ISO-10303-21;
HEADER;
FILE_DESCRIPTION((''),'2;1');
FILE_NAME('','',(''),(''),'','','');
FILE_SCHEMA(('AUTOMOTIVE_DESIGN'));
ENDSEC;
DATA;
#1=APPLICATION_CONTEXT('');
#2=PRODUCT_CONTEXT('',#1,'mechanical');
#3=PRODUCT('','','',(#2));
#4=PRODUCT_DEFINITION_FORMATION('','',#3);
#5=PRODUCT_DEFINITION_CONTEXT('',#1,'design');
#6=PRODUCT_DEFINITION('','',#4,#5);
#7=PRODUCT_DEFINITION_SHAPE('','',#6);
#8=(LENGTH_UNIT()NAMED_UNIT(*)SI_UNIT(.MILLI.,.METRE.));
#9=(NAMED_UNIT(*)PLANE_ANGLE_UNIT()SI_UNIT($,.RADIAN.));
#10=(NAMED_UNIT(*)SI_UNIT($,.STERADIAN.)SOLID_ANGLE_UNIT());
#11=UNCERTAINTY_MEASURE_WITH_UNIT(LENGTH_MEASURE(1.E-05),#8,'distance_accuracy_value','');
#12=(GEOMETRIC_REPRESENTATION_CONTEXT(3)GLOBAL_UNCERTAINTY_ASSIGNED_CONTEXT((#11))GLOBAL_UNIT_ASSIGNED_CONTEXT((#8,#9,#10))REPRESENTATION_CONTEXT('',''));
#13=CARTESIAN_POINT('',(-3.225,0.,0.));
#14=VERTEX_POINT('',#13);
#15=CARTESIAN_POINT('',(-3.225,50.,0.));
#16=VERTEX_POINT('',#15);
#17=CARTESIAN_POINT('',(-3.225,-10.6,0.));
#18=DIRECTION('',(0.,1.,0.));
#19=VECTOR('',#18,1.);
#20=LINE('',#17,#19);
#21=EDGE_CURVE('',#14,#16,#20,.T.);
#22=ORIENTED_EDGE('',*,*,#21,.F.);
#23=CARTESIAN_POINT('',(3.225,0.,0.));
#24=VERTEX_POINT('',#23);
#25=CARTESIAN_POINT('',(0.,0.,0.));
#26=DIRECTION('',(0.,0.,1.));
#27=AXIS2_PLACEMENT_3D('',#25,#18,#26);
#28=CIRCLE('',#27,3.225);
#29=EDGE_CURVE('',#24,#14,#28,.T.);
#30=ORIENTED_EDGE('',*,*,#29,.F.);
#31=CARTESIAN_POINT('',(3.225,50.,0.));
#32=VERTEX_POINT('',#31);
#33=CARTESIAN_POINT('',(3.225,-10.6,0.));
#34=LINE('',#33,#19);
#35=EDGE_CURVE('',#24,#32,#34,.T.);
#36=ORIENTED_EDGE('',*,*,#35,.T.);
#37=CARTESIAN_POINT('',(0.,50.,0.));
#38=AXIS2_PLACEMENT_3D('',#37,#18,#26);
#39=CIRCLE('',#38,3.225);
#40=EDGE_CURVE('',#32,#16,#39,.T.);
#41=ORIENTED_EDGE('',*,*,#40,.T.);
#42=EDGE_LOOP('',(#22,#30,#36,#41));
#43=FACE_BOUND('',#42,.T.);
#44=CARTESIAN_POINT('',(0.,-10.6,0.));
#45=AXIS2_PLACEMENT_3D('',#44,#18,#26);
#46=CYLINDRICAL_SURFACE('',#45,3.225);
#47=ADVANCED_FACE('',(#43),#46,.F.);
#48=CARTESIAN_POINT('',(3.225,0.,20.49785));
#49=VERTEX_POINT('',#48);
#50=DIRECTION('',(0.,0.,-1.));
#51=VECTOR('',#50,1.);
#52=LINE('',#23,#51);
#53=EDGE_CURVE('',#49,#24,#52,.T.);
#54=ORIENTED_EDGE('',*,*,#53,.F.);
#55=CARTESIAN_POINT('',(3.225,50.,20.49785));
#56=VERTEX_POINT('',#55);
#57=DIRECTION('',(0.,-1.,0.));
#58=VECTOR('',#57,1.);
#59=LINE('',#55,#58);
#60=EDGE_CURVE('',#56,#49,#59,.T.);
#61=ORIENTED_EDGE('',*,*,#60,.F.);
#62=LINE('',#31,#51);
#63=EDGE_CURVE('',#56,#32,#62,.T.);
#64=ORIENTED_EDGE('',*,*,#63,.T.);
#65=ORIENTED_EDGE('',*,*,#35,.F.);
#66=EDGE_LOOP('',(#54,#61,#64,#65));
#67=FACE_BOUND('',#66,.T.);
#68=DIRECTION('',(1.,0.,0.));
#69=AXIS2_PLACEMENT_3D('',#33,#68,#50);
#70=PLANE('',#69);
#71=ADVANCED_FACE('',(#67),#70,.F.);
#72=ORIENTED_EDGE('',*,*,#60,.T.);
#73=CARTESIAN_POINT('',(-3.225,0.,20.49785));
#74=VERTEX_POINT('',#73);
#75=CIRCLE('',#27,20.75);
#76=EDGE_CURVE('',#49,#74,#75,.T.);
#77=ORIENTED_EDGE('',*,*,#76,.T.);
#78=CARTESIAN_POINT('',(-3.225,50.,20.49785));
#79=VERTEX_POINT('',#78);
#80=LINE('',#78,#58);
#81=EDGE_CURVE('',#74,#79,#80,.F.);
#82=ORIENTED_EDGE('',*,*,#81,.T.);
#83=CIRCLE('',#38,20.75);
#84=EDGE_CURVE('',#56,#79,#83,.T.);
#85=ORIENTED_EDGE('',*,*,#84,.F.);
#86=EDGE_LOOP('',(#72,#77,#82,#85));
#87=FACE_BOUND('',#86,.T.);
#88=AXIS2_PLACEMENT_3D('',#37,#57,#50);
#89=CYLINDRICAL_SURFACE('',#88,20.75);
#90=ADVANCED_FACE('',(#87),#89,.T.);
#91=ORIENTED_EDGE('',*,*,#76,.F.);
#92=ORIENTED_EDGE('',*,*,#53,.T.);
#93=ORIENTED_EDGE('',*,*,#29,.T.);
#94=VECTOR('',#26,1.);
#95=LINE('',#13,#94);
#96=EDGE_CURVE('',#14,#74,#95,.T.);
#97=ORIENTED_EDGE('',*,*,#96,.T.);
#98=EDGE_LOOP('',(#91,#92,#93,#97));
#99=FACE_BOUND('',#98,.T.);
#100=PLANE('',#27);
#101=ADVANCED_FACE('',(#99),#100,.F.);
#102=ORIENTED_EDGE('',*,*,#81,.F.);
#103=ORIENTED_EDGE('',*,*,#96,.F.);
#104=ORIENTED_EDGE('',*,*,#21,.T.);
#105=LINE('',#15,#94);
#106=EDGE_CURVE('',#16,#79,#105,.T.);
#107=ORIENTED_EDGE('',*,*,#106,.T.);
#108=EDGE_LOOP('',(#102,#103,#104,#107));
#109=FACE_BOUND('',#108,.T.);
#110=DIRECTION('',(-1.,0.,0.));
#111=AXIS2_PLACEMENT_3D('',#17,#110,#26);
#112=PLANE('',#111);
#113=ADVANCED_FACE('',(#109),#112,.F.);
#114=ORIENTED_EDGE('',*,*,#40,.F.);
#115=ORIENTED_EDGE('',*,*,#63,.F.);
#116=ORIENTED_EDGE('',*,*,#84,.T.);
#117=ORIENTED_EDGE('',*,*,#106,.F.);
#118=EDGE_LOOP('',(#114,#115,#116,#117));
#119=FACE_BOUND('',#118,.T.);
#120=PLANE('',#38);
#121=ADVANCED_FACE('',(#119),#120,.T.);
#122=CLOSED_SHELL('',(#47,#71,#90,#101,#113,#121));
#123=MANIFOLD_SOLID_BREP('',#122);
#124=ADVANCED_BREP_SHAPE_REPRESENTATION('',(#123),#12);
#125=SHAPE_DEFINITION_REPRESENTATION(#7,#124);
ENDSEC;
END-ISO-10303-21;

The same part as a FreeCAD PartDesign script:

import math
import FreeCAD as App
import Part
import Sketcher
Q = App.Units.Quantity

doc = App.newDocument("Part")
body = doc.addObject("PartDesign::Body", "Body")

# Sketch on XZ plane
sketch1 = doc.addObject("Sketcher::SketchObject", "Sketch")
body.addObject(sketch1)
sketch1.AttachmentSupport = (doc.XZ_Plane, [""])
sketch1.MapMode = "FlatFace"
sketch1.addGeometry(Part.Circle(App.Vector(0, 0, 0), App.Vector(0, 0, 1), 20.75), False)
sketch1.addConstraint([
    Sketcher.Constraint("Coincident", 0, 3, -1, 1),
    Sketcher.Constraint("Diameter", 0, Q("41.5 mm")),
])
pad1 = doc.addObject("PartDesign::Pad", "Pad")
body.addObject(pad1)
pad1.Profile = sketch1
pad1.Length = 50
pad1.Reversed = True

# Sketch on XZ plane
sketch2 = doc.addObject("Sketcher::SketchObject", "Sketch001")
body.addObject(sketch2)
sketch2.AttachmentSupport = (doc.XZ_Plane, [""])
sketch2.MapMode = "FlatFace"
sketch2.AttachmentOffset = App.Placement(App.Vector(0, 0, -50), App.Rotation())
sketch2.addGeometry([
    Part.LineSegment(App.Vector(-3.225, 0, 0), App.Vector(-3.225, 23.125804, 0)),
    Part.LineSegment(App.Vector(-3.225, 23.125804, 0), App.Vector(3.225, 23.125804, 0)),
    Part.LineSegment(App.Vector(3.225, 23.125804, 0), App.Vector(3.225, 0, 0)),
    Part.ArcOfCircle(Part.Circle(App.Vector(0, 0, 0), App.Vector(0, 0, 1), 3.225), math.radians(180), math.radians(360)),
], False)
sketch2.addConstraint([
    Sketcher.Constraint("Coincident", 0, 2, 1, 1),
    Sketcher.Constraint("Coincident", 1, 2, 2, 1),
    Sketcher.Constraint("Tangent", 2, 2, 3, 2),
    Sketcher.Constraint("Tangent", 3, 1, 0, 1),
    Sketcher.Constraint("Vertical", 0),
    Sketcher.Constraint("Horizontal", 1),
    Sketcher.Constraint("Vertical", 2),
    Sketcher.Constraint("Coincident", 3, 3, -1, 1),
    Sketcher.Constraint("Radius", 3, Q("3.225 mm")),
    Sketcher.Constraint("DistanceY", 0, 1, 0, 2, Q("23.125804 mm")),
])
pocket1 = doc.addObject("PartDesign::Pocket", "Pocket")
body.addObject(pocket1)
pocket1.Profile = sketch2
pocket1.Length = 60.6
pocket1.Reversed = True

doc.recompute()
